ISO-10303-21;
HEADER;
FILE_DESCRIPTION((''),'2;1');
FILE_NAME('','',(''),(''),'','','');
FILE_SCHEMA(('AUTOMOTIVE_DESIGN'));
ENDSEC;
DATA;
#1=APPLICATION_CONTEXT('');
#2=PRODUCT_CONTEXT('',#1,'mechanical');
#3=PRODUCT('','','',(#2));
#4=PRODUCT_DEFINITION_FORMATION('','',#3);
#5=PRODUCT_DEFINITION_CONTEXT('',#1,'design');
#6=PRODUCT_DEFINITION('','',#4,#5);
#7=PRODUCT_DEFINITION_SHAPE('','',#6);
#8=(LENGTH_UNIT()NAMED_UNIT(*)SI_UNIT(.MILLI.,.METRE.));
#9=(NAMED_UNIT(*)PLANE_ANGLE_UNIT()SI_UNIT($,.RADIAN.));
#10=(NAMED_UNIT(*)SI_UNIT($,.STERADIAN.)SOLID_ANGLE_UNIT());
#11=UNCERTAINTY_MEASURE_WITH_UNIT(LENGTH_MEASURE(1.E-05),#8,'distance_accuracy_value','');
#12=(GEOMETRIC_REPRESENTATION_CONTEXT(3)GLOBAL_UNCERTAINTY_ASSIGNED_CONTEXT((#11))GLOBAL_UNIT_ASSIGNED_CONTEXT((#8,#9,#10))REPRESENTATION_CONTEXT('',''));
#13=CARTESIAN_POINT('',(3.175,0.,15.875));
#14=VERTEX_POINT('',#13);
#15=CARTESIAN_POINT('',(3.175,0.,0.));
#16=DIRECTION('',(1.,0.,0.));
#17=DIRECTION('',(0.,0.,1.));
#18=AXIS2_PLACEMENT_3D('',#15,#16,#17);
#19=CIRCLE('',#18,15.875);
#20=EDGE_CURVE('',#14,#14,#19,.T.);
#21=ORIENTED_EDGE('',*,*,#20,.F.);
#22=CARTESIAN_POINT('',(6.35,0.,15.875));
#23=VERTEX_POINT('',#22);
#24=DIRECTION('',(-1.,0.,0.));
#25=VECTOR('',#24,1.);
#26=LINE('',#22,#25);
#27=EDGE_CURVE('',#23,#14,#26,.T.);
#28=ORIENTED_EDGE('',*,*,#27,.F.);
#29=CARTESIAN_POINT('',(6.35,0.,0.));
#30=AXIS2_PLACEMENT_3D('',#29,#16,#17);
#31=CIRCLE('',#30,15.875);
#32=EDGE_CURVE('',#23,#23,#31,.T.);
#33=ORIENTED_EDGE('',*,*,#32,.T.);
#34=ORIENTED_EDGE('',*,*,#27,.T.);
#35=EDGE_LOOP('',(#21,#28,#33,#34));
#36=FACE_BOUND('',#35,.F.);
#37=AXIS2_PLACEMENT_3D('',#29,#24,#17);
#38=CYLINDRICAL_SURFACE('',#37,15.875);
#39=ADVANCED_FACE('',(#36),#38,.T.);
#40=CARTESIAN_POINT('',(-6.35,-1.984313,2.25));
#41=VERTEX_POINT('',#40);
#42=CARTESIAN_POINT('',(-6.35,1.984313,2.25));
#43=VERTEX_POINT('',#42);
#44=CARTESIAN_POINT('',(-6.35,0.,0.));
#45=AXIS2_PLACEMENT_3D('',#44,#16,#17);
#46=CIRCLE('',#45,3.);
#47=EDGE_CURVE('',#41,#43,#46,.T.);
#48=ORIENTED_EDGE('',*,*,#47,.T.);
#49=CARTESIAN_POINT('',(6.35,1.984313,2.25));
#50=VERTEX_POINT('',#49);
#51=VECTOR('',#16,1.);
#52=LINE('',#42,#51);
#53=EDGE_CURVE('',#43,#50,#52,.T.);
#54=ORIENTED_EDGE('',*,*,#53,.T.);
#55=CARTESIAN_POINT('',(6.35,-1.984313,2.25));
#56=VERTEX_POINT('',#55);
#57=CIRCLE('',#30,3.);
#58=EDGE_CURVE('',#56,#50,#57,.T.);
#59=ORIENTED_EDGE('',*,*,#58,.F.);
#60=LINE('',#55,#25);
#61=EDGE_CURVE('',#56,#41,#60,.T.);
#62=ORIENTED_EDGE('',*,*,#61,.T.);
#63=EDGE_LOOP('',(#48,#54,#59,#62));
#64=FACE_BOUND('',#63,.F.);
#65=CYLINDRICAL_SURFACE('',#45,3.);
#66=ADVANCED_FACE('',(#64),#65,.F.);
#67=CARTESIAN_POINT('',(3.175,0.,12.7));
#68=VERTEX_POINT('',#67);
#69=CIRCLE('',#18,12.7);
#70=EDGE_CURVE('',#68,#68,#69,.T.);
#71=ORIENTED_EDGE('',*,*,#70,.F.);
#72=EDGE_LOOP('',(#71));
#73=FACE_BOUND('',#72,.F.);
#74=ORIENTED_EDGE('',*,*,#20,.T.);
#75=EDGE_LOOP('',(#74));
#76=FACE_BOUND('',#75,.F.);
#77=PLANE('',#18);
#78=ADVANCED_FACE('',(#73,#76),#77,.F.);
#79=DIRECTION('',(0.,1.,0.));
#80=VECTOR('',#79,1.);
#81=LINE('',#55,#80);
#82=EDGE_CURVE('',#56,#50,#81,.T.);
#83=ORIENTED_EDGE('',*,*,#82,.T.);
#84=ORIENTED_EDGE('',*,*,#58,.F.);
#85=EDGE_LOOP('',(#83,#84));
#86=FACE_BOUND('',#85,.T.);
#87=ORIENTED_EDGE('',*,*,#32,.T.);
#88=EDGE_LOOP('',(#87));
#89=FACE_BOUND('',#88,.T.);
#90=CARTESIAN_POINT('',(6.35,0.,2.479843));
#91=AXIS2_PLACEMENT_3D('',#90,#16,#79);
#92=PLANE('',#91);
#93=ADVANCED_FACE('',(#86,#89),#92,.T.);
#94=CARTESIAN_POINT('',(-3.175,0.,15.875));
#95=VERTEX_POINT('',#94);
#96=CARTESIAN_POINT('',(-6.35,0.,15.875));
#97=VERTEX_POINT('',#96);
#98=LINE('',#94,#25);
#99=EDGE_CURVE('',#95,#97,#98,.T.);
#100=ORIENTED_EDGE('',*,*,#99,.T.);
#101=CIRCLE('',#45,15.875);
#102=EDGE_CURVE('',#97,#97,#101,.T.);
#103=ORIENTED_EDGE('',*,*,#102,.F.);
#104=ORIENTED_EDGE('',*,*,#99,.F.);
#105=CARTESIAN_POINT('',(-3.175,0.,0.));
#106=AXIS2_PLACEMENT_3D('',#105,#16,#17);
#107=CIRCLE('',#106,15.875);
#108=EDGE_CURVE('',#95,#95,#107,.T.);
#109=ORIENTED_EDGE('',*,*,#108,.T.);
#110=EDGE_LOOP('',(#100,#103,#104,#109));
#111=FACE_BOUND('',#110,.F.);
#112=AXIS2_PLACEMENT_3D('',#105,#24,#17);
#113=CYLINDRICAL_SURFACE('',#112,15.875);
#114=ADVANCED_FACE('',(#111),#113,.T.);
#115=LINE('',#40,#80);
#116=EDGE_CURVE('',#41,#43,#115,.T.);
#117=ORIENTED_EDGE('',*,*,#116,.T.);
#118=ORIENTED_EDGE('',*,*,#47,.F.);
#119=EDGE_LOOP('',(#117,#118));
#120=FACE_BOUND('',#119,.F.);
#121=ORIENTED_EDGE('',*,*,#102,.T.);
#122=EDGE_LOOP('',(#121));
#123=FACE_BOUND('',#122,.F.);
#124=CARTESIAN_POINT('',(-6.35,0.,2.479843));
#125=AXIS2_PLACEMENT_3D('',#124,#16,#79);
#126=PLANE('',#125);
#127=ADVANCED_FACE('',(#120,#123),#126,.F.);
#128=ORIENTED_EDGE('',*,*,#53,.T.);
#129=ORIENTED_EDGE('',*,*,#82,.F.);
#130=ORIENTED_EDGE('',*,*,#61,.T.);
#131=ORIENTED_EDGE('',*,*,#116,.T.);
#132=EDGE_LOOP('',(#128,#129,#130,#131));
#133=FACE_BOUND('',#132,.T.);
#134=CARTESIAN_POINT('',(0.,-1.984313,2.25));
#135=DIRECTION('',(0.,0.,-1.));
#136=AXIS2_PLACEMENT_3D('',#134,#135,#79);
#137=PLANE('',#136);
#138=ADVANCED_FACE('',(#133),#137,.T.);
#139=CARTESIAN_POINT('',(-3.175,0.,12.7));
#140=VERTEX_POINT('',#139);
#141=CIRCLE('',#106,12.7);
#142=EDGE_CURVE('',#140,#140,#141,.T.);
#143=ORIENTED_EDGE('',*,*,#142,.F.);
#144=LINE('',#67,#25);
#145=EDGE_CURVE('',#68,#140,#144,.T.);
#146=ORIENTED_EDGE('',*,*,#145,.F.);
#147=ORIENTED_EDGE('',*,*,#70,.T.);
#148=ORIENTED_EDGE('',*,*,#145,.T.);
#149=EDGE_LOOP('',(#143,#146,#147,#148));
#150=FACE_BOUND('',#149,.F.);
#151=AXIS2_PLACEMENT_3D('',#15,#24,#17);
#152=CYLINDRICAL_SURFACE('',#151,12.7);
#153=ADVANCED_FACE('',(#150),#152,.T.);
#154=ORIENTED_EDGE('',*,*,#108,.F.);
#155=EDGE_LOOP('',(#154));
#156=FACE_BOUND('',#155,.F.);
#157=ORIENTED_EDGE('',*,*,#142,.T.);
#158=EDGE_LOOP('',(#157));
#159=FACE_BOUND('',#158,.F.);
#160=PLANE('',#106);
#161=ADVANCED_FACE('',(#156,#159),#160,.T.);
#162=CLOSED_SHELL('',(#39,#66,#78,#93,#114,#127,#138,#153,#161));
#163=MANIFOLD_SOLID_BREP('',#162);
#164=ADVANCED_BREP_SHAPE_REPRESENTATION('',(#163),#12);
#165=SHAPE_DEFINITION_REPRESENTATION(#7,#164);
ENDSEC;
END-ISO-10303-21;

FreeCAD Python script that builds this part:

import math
import FreeCAD as App
import Part
import Sketcher

V = App.Vector
Q = App.Units.Quantity


def add_polygon(sketch, points):
    """Adds a closed chain of lines whose ends are joined by coincident constraints."""
    first, n = sketch.GeometryCount, len(points)
    for a, b in zip(points, points[1:] + points[:1]):
        sketch.addGeometry(Part.LineSegment(App.Vector(*a, 0), App.Vector(*b, 0)), False)
    for i in range(n):
        sketch.addConstraint(Sketcher.Constraint("Coincident", first + i, 2, first + (i + 1) % n, 1))

doc = App.newDocument("Part")
params = doc.addObject("Spreadsheet::Sheet", "Params")
for row, (alias, value) in enumerate([
    ("sketch1_width", "0.5 in"),
    ("sketch1_width2", "0.25 in"),
    ("revolution_angle", "360 deg"),
    ("pad1_length", "0.25 in"),
    ("pad1_length2", "0.25 in"),
], start=1):
    params.set(f"A{row}", alias)
    params.set(f"B{row}", "=" + value)
    params.setAlias(f"B{row}", alias)

body = doc.addObject("PartDesign::Body", "Body")

# Sketch on XZ plane
sketch1 = doc.addObject("Sketcher::SketchObject", "Sketch")
body.addObject(sketch1)
sketch1.AttachmentSupport = (doc.XZ_Plane, [""])
sketch1.MapMode = "FlatFace"
add_polygon(sketch1, [(-6.35, 15.875), (-6.35, 3), (6.35, 3), (6.35, 15.875), (3.175, 15.875), (3.175, 12.7), (-3.175, 12.7), (-3.175, 15.875)])  # lines 0-7
sketch1.addConstraint([
    Sketcher.Constraint("Vertical", 0),
    Sketcher.Constraint("Horizontal", 1),
    Sketcher.Constraint("Vertical", 2),
    Sketcher.Constraint("Horizontal", 3),
    Sketcher.Constraint("Vertical", 4),
    Sketcher.Constraint("Horizontal", 5),
    Sketcher.Constraint("Vertical", 6),
    Sketcher.Constraint("Horizontal", 7),
    Sketcher.Constraint("Symmetric", 3, 2, 6, 2, -2),
    Sketcher.Constraint("Equal", 3, 7),
    Sketcher.Constraint("Equal", 7, 4),
    Sketcher.Constraint("DistanceX", 1, 1, 1, 2, Q("0.5 in")),
    Sketcher.Constraint("DistanceX", 5, 2, 5, 1, Q("0.25 in")),
    Sketcher.Constraint("DistanceY", -1, 1, 4, 2, Q("0.5 in")),
    Sketcher.Constraint("DistanceY", 0, 2, 0, 1, Q("12.875 mm")),
])
sketch1.setExpression("Constraints[19]", "Params.sketch1_width")
sketch1.setExpression("Constraints[20]", "Params.sketch1_width2")
revolution = doc.addObject("PartDesign::Revolution", "Revolution")
body.addObject(revolution)
revolution.Profile = sketch1
revolution.ReferenceAxis = (sketch1, ["H_Axis"])
revolution.setExpression("Angle", "Params.revolution_angle")

# Sketch on YZ plane
sketch2 = doc.addObject("Sketcher::SketchObject", "Sketch001")
body.addObject(sketch2)
sketch2.AttachmentSupport = (doc.YZ_Plane, [""])
sketch2.MapMode = "FlatFace"
sketch2.addGeometry([
    Part.LineSegment(V(-1.984313, 2.25, 0), V(1.984313, 2.25, 0)),
    Part.ArcOfCircle(Part.Circle(V(0, 0, 0), V(0, 0, 1), 3), math.radians(48.590378), math.radians(131.409622)),
], False)
sketch2.addConstraint([
    Sketcher.Constraint("Coincident", 0, 1, 1, 2),
    Sketcher.Constraint("Coincident", 1, 1, 0, 2),
    Sketcher.Constraint("Horizontal", 0),
    Sketcher.Constraint("Coincident", 1, 3, -1, 1),
    Sketcher.Constraint("Radius", 1, Q("3 mm")),
    Sketcher.Constraint("DistanceY", -1, 1, 0, 1, Q("2.25 mm")),
])
pad1 = doc.addObject("PartDesign::Pad", "Pad")
body.addObject(pad1)
pad1.Profile = sketch2
pad1.Type = "TwoLengths"
pad1.setExpression("Length", "Params.pad1_length")
pad1.setExpression("Length2", "Params.pad1_length2")

doc.recompute()
